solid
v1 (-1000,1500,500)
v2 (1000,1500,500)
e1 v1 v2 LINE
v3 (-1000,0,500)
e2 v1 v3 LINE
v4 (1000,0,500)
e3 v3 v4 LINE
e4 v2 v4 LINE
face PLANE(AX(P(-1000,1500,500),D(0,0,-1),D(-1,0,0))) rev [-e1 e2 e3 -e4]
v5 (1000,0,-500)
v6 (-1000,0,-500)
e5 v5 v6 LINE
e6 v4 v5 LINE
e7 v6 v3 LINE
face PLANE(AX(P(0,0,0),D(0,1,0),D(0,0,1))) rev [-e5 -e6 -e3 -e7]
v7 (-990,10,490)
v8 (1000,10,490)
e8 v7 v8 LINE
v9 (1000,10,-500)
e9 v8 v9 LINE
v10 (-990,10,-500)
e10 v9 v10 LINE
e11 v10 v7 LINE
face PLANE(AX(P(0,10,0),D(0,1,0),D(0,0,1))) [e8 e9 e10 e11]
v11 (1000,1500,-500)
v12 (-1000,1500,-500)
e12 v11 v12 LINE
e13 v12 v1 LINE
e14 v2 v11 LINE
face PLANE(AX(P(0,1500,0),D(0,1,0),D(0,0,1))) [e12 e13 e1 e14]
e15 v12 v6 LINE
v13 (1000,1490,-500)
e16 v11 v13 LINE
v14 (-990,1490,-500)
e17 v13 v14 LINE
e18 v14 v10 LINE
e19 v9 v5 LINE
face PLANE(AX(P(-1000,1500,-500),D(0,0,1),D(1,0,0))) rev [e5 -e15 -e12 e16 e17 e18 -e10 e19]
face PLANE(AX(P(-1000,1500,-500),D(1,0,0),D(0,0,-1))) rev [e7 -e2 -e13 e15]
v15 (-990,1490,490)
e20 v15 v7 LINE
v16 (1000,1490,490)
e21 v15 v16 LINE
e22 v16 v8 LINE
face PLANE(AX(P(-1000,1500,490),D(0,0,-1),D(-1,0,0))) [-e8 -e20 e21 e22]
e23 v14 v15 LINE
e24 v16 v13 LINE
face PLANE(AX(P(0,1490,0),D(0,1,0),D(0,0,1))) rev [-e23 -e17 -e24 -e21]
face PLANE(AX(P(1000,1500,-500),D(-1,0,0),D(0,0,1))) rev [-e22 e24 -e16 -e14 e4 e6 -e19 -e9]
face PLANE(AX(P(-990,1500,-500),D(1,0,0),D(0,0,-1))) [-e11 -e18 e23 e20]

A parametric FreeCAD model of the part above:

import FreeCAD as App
import Part
import Sketcher

V = App.Vector
Q = App.Units.Quantity


def faces_at(feature, points):
    """Names of the faces that lie closest to the given points."""
    faces = feature.Shape.Faces
    near = lambda p: min(range(len(faces)), key=lambda i: faces[i].distToShape(Part.Vertex(*p))[0])
    return sorted({f"Face{near(p) + 1}" for p in points})


def add_polygon(sketch, points):
    """Adds a closed chain of lines whose ends are joined by coincident constraints."""
    first, n = sketch.GeometryCount, len(points)
    for a, b in zip(points, points[1:] + points[:1]):
        sketch.addGeometry(Part.LineSegment(App.Vector(*a, 0), App.Vector(*b, 0)), False)
    for i in range(n):
        sketch.addConstraint(Sketcher.Constraint("Coincident", first + i, 2, first + (i + 1) % n, 1))

doc = App.newDocument("Part")
body = doc.addObject("PartDesign::Body", "Body")

# Sketch on XZ plane
sketch1 = doc.addObject("Sketcher::SketchObject", "Sketch")
body.addObject(sketch1)
sketch1.AttachmentSupport = (doc.XZ_Plane, [""])
sketch1.MapMode = "FlatFace"
add_polygon(sketch1, [(-1000, -500), (-1000, 500), (1000, 500), (1000, -500)])  # lines 0-3
sketch1.addConstraint(Sketcher.Constraint("Vertical", 0))
sketch1.addConstraint(Sketcher.Constraint("Horizontal", 1))
sketch1.addConstraint(Sketcher.Constraint("Vertical", 2))
sketch1.addConstraint(Sketcher.Constraint("Horizontal", 3))
sketch1.addConstraint(Sketcher.Constraint("Symmetric", 0, 2, 2, 2, -1, 1))
sketch1.addConstraint(Sketcher.Constraint("DistanceX", 1, 1, 1, 2, Q("2000 mm")))
sketch1.addConstraint(Sketcher.Constraint("DistanceY", 0, 1, 0, 2, Q("1000 mm")))
pad1 = doc.addObject("PartDesign::Pad", "Pad")
body.addObject(pad1)
pad1.Profile = sketch1
pad1.Length = 1500
pad1.Reversed = True
doc.recompute()

thickness = doc.addObject("PartDesign::Thickness", "Thickness")
body.addObject(thickness)
thickness.Base = (pad1, faces_at(pad1, [(0, 750, -500), (1000, 750, 0)]))
thickness.Value = 10
thickness.Reversed = True
thickness.Join = "Intersection"

doc.recompute()
